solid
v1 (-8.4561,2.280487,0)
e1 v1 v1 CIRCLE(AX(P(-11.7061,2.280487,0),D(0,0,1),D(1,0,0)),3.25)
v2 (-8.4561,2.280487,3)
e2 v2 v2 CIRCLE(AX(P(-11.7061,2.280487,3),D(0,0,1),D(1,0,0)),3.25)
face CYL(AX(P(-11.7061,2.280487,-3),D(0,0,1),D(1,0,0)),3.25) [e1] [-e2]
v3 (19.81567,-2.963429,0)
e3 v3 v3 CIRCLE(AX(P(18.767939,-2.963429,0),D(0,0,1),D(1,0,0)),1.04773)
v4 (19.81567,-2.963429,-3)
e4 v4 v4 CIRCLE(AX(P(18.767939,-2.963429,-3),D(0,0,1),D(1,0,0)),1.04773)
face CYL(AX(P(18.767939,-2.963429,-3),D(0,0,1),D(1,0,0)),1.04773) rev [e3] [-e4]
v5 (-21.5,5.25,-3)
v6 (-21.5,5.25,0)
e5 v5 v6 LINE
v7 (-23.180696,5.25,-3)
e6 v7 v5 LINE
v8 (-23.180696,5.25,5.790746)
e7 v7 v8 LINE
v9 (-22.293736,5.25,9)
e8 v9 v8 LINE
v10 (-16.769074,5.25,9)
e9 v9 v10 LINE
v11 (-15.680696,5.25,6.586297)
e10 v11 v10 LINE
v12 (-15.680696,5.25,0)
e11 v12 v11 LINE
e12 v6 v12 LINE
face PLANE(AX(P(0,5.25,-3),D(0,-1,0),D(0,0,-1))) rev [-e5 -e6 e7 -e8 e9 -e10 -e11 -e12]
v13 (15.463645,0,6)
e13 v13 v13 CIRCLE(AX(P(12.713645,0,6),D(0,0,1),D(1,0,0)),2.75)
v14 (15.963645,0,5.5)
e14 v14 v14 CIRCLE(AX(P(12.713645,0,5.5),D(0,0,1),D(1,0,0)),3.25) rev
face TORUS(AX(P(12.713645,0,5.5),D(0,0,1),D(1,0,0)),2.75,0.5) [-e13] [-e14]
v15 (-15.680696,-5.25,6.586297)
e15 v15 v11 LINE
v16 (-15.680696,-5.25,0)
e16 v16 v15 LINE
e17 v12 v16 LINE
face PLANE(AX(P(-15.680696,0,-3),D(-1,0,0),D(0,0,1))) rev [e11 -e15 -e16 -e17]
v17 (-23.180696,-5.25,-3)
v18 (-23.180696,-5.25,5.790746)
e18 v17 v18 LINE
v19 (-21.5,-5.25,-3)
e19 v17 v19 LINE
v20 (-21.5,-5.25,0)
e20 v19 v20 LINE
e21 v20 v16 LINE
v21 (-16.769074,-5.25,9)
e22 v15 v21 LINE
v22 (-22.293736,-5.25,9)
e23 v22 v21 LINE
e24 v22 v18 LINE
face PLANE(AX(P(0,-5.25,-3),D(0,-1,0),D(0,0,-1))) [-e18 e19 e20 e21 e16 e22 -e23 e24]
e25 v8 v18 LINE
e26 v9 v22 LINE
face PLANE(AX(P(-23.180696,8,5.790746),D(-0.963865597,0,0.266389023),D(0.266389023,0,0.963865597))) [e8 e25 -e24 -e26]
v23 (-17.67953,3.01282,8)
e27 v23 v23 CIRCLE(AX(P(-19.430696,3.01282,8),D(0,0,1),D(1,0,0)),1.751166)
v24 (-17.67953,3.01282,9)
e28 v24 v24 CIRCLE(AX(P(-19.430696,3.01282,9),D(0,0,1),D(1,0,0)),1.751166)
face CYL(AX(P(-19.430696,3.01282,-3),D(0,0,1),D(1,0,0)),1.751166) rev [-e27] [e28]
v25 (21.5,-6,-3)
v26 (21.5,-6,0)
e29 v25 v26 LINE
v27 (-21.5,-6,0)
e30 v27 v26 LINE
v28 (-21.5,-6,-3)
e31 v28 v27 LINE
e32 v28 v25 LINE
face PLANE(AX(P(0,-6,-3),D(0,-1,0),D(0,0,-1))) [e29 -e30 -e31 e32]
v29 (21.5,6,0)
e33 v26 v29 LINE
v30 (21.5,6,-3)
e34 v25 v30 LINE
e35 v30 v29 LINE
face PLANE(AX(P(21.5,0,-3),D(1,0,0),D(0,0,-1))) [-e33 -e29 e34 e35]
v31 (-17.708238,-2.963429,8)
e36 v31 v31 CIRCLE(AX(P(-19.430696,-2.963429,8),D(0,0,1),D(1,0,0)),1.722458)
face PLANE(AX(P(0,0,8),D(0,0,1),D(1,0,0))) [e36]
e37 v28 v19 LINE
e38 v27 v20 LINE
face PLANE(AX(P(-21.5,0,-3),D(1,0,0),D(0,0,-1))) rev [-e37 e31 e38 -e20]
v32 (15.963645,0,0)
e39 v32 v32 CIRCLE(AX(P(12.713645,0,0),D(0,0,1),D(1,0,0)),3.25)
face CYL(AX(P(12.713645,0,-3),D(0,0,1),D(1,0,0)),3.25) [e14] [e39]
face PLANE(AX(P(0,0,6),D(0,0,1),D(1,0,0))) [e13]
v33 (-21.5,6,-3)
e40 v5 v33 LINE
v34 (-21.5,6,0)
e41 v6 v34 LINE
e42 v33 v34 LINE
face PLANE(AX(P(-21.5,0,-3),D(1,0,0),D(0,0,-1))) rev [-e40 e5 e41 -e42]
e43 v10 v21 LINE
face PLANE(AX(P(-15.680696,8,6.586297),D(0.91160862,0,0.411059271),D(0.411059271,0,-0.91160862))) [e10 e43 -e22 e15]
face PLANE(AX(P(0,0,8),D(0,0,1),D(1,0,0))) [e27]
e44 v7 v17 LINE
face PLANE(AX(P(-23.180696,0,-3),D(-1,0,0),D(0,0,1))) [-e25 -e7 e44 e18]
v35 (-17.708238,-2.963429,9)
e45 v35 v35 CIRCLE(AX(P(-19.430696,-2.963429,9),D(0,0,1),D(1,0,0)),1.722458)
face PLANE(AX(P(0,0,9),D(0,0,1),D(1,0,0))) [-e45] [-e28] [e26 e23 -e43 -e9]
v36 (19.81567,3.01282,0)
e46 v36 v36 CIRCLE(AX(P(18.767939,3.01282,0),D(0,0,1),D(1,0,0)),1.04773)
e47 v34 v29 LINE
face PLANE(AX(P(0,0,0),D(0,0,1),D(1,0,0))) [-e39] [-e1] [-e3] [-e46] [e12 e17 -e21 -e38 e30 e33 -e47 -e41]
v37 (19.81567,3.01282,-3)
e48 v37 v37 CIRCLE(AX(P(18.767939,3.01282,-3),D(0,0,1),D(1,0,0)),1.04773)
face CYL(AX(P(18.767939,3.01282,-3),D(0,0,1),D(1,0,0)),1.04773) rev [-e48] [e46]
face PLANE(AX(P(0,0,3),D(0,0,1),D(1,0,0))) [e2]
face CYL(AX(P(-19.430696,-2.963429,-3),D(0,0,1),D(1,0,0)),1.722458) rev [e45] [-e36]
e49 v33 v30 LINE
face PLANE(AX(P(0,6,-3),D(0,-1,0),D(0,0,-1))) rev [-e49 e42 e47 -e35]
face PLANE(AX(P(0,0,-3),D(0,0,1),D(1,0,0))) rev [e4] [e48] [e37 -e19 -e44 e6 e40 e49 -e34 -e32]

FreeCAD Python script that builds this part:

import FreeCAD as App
import Part
import Sketcher

V = App.Vector


def edges_at(feature, points):
    """Names of the edges that pass closest to the given points."""
    edges = feature.Shape.Edges
    near = lambda p: min(range(len(edges)), key=lambda i: edges[i].distToShape(Part.Vertex(*p))[0])
    return sorted({f"Edge{near(p) + 1}" for p in points})


def add_polygon(sketch, points):
    """Adds a closed chain of lines whose ends are joined by coincident constraints."""
    first, n = sketch.GeometryCount, len(points)
    for a, b in zip(points, points[1:] + points[:1]):
        sketch.addGeometry(Part.LineSegment(App.Vector(*a, 0), App.Vector(*b, 0)), False)
    for i in range(n):
        sketch.addConstraint(Sketcher.Constraint("Coincident", first + i, 2, first + (i + 1) % n, 1))

doc = App.newDocument("Part")
body = doc.addObject("PartDesign::Body", "Body")

# Sketch on XY plane
sketch1 = doc.addObject("Sketcher::SketchObject", "Sketch")
body.addObject(sketch1)
sketch1.AttachmentSupport = (doc.XY_Plane, [""])
sketch1.MapMode = "FlatFace"
add_polygon(sketch1, [(-21.5, -5.25), (-21.5, -6), (21.5, -6), (21.5, 6), (-21.5, 6), (-21.5, 5.25), (-15.680696, 5.25), (-15.680696, -5.25)])  # lines 0-7
sketch1.addGeometry(Part.Circle(V(18.767939, -2.963429, 0), V(0, 0, 1), 1.04773), False)  # 8
sketch1.addGeometry(Part.Circle(V(12.713645, 0, 0), V(0, 0, 1), 3.25), False)  # 9
sketch1.addGeometry(Part.Circle(V(-11.7061, 2.280487, 0), V(0, 0, 1), 3.25), False)  # 10
sketch1.addGeometry(Part.Circle(V(18.767939, 3.01282, 0), V(0, 0, 1), 1.04773), False)  # 11
sketch1.addConstraint([
    Sketcher.Constraint("Vertical", 0),
    Sketcher.Constraint("Horizontal", 1),
    Sketcher.Constraint("Vertical", 2),
    Sketcher.Constraint("Horizontal", 3),
    Sketcher.Constraint("Vertical", 4),
    Sketcher.Constraint("Horizontal", 5),
    Sketcher.Constraint("Vertical", 6),
    Sketcher.Constraint("Horizontal", 7),
    Sketcher.Constraint("Equal", 9, 10),
    Sketcher.Constraint("Equal", 8, 11),
    Sketcher.Constraint("Symmetric", 0, 2, 2, 2, -1, 1),
    Sketcher.Constraint("Symmetric", 4, 2, 7, 2, -1),
    Sketcher.Constraint("PointOnObject", 9, 3, -1),
    Sketcher.Constraint("Vertical", 8, 3, 11, 3),
    Sketcher.Constraint("Diameter", 9, 6.5),
    Sketcher.Constraint("DistanceX", 1, 1, 1, 2, 43.0),
    Sketcher.Constraint("DistanceY", 2, 1, 2, 2, 12.0),
    Sketcher.Constraint("DistanceY", 6, 2, 6, 1, 10.5),
    Sketcher.Constraint("Diameter", 8, 2.095461),
    Sketcher.Constraint("DistanceX", 10, 3, -1, 1, 11.7061),
    Sketcher.Constraint("DistanceX", 5, 1, 5, 2, 5.819304),
    Sketcher.Constraint("DistanceX", -1, 1, 8, 3, 18.767939),
    Sketcher.Constraint("DistanceY", 8, 3, -1, 1, 2.963429),
    Sketcher.Constraint("DistanceY", -1, 1, 11, 3, 3.01282),
    Sketcher.Constraint("DistanceX", 5, 2, 9, 3, 28.394341),
    Sketcher.Constraint("DistanceY", -1, 1, 10, 3, 2.280487),
])
pad1 = doc.addObject("PartDesign::Pad", "Pad")
body.addObject(pad1)
pad1.Profile = sketch1
pad1.Length = 3
pad1.Reversed = True

# Sketch on XY plane
sketch2 = doc.addObject("Sketcher::SketchObject", "Sketch001")
body.addObject(sketch2)
sketch2.AttachmentSupport = (doc.XY_Plane, [""])
sketch2.MapMode = "FlatFace"
sketch2.addGeometry(Part.Circle(V(-11.7061, 2.280487, 0), V(0, 0, 1), 3.25), False)
sketch2.addConstraint([
    Sketcher.Constraint("Diameter", 0, 6.5),
    Sketcher.Constraint("DistanceX", 0, 3, -1, 1, 11.7061),
    Sketcher.Constraint("DistanceY", -1, 1, 0, 3, 2.280487),
])
pad2 = doc.addObject("PartDesign::Pad", "Pad001")
body.addObject(pad2)
pad2.Profile = sketch2
pad2.Type = "TwoLengths"
pad2.Length = 3
pad2.Length2 = 3

# Sketch on XY plane
sketch3 = doc.addObject("Sketcher::SketchObject", "Sketch002")
body.addObject(sketch3)
sketch3.AttachmentSupport = (doc.XY_Plane, [""])
sketch3.MapMode = "FlatFace"
sketch3.addGeometry(Part.Circle(V(12.713645, 0, 0), V(0, 0, 1), 3.25), False)
sketch3.addConstraint([
    Sketcher.Constraint("PointOnObject", 0, 3, -1),
    Sketcher.Constraint("Diameter", 0, 6.5),
    Sketcher.Constraint("DistanceX", -1, 1, 0, 3, 12.713645),
])
pad3 = doc.addObject("PartDesign::Pad", "Pad002")
body.addObject(pad3)
pad3.Profile = sketch3
pad3.Type = "TwoLengths"
pad3.Length = 6
pad3.Length2 = 3

# Sketch on XY plane
sketch4 = doc.addObject("Sketcher::SketchObject", "Sketch003")
body.addObject(sketch4)
sketch4.AttachmentSupport = (doc.XY_Plane, [""])
sketch4.MapMode = "FlatFace"
add_polygon(sketch4, [(-15.680696, -5.25), (-15.680696, 5.25), (-23.180696, 5.25), (-23.180696, -5.25)])  # lines 0-3
sketch4.addGeometry(Part.Circle(V(-19.430696, -2.963429, 0), V(0, 0, 1), 1.722458), False)  # 4
sketch4.addGeometry(Part.Circle(V(-19.430696, 3.01282, 0), V(0, 0, 1), 1.751166), False)  # 5
sketch4.addConstraint([
    Sketcher.Constraint("Vertical", 0),
    Sketcher.Constraint("Horizontal", 1),
    Sketcher.Constraint("Vertical", 2),
    Sketcher.Constraint("Horizontal", 3),
    Sketcher.Constraint("Vertical", 4, 3, 5, 3),
    Sketcher.Constraint("DistanceX", 1, 2, 1, 1, 7.5),
    Sketcher.Constraint("DistanceY", 0, 1, 0, 2, 10.5),
    Sketcher.Constraint("Diameter", 5, 3.502332),
    Sketcher.Constraint("DistanceY", -1, 1, 0, 2, 5.25),
    Sketcher.Constraint("DistanceX", 5, 3, 0, 2, 3.75),
    Sketcher.Constraint("Diameter", 4, 3.444916),
    Sketcher.Constraint("DistanceY", 4, 3, -1, 1, 2.963429),
    Sketcher.Constraint("DistanceY", -1, 1, 5, 3, 3.01282),
    Sketcher.Constraint("DistanceX", 4, 3, -1, 1, 19.430696),
])
pad4 = doc.addObject("PartDesign::Pad", "Pad003")
body.addObject(pad4)
pad4.Profile = sketch4
pad4.Type = "TwoLengths"
pad4.Length = 9
pad4.Length2 = 3

# Sketch on XY plane
sketch5 = doc.addObject("Sketcher::SketchObject", "Sketch004")
body.addObject(sketch5)
sketch5.AttachmentSupport = (doc.XY_Plane, [""])
sketch5.MapMode = "FlatFace"
sketch5.addGeometry([
    Part.Circle(V(-19.430696, 3.01282, 0), V(0, 0, 1), 1.751166),
    Part.Circle(V(-19.430696, -2.963429, 0), V(0, 0, 1), 1.722458),
], False)
sketch5.addConstraint([
    Sketcher.Constraint("Vertical", 0, 3, 1, 3),
    Sketcher.Constraint("Diameter", 0, 3.502332),
    Sketcher.Constraint("Diameter", 1, 3.444916),
    Sketcher.Constraint("DistanceY", -1, 1, 0, 3, 3.01282),
    Sketcher.Constraint("DistanceY", 1, 3, -1, 1, 2.963429),
    Sketcher.Constraint("DistanceX", 0, 3, -1, 1, 19.430696),
])
pad5 = doc.addObject("PartDesign::Pad", "Pad004")
body.addObject(pad5)
pad5.Profile = sketch5
pad5.Type = "TwoLengths"
pad5.Length = 8
pad5.Length2 = 3

# Sketch on XZ plane
sketch6 = doc.addObject("Sketcher::SketchObject", "Sketch005")
body.addObject(sketch6)
sketch6.AttachmentSupport = (doc.XZ_Plane, [""])
sketch6.MapMode = "FlatFace"
add_polygon(sketch6, [(-22.293736, 9), (-23.180696, 5.790746), (-23.180696, 9)])  # lines 0-2
add_polygon(sketch6, [(-15.680696, 6.586297), (-16.769074, 9), (-15.680696, 9)])  # lines 3-5
sketch6.addConstraint([
    Sketcher.Constraint("Vertical", 1),
    Sketcher.Constraint("Horizontal", 2),
    Sketcher.Constraint("Horizontal", 4),
    Sketcher.Constraint("Vertical", 5),
    Sketcher.Constraint("Horizontal", 2, 2, 3, 2),
    Sketcher.Constraint("DistanceY", -1, 1, 1, 2, 9.0),
    Sketcher.Constraint("DistanceX", 1, 2, 4, 2, 7.5),
    Sketcher.Constraint("DistanceX", 2, 1, 2, 2, 0.88696),
    Sketcher.Constraint("DistanceX", 4, 1, 4, 2, 1.088378),
    Sketcher.Constraint("Distance", 3, 2.64774),
    Sketcher.Constraint("DistanceY", 1, 1, 1, 2, 3.209254),
    Sketcher.Constraint("DistanceX", 0, 2, -1, 1, 23.180696),
])
pocket1 = doc.addObject("PartDesign::Pocket", "Pocket")
body.addObject(pocket1)
pocket1.Profile = sketch6
pocket1.Type = "ThroughAll"
pocket1.Midplane = True
doc.recompute()

fillet = doc.addObject("PartDesign::Fillet", "Fillet")
body.addObject(fillet)
fillet.Base = (pocket1, edges_at(pocket1, [(9.464, 0, 6)]))
fillet.Radius = 0.5

doc.recompute()
